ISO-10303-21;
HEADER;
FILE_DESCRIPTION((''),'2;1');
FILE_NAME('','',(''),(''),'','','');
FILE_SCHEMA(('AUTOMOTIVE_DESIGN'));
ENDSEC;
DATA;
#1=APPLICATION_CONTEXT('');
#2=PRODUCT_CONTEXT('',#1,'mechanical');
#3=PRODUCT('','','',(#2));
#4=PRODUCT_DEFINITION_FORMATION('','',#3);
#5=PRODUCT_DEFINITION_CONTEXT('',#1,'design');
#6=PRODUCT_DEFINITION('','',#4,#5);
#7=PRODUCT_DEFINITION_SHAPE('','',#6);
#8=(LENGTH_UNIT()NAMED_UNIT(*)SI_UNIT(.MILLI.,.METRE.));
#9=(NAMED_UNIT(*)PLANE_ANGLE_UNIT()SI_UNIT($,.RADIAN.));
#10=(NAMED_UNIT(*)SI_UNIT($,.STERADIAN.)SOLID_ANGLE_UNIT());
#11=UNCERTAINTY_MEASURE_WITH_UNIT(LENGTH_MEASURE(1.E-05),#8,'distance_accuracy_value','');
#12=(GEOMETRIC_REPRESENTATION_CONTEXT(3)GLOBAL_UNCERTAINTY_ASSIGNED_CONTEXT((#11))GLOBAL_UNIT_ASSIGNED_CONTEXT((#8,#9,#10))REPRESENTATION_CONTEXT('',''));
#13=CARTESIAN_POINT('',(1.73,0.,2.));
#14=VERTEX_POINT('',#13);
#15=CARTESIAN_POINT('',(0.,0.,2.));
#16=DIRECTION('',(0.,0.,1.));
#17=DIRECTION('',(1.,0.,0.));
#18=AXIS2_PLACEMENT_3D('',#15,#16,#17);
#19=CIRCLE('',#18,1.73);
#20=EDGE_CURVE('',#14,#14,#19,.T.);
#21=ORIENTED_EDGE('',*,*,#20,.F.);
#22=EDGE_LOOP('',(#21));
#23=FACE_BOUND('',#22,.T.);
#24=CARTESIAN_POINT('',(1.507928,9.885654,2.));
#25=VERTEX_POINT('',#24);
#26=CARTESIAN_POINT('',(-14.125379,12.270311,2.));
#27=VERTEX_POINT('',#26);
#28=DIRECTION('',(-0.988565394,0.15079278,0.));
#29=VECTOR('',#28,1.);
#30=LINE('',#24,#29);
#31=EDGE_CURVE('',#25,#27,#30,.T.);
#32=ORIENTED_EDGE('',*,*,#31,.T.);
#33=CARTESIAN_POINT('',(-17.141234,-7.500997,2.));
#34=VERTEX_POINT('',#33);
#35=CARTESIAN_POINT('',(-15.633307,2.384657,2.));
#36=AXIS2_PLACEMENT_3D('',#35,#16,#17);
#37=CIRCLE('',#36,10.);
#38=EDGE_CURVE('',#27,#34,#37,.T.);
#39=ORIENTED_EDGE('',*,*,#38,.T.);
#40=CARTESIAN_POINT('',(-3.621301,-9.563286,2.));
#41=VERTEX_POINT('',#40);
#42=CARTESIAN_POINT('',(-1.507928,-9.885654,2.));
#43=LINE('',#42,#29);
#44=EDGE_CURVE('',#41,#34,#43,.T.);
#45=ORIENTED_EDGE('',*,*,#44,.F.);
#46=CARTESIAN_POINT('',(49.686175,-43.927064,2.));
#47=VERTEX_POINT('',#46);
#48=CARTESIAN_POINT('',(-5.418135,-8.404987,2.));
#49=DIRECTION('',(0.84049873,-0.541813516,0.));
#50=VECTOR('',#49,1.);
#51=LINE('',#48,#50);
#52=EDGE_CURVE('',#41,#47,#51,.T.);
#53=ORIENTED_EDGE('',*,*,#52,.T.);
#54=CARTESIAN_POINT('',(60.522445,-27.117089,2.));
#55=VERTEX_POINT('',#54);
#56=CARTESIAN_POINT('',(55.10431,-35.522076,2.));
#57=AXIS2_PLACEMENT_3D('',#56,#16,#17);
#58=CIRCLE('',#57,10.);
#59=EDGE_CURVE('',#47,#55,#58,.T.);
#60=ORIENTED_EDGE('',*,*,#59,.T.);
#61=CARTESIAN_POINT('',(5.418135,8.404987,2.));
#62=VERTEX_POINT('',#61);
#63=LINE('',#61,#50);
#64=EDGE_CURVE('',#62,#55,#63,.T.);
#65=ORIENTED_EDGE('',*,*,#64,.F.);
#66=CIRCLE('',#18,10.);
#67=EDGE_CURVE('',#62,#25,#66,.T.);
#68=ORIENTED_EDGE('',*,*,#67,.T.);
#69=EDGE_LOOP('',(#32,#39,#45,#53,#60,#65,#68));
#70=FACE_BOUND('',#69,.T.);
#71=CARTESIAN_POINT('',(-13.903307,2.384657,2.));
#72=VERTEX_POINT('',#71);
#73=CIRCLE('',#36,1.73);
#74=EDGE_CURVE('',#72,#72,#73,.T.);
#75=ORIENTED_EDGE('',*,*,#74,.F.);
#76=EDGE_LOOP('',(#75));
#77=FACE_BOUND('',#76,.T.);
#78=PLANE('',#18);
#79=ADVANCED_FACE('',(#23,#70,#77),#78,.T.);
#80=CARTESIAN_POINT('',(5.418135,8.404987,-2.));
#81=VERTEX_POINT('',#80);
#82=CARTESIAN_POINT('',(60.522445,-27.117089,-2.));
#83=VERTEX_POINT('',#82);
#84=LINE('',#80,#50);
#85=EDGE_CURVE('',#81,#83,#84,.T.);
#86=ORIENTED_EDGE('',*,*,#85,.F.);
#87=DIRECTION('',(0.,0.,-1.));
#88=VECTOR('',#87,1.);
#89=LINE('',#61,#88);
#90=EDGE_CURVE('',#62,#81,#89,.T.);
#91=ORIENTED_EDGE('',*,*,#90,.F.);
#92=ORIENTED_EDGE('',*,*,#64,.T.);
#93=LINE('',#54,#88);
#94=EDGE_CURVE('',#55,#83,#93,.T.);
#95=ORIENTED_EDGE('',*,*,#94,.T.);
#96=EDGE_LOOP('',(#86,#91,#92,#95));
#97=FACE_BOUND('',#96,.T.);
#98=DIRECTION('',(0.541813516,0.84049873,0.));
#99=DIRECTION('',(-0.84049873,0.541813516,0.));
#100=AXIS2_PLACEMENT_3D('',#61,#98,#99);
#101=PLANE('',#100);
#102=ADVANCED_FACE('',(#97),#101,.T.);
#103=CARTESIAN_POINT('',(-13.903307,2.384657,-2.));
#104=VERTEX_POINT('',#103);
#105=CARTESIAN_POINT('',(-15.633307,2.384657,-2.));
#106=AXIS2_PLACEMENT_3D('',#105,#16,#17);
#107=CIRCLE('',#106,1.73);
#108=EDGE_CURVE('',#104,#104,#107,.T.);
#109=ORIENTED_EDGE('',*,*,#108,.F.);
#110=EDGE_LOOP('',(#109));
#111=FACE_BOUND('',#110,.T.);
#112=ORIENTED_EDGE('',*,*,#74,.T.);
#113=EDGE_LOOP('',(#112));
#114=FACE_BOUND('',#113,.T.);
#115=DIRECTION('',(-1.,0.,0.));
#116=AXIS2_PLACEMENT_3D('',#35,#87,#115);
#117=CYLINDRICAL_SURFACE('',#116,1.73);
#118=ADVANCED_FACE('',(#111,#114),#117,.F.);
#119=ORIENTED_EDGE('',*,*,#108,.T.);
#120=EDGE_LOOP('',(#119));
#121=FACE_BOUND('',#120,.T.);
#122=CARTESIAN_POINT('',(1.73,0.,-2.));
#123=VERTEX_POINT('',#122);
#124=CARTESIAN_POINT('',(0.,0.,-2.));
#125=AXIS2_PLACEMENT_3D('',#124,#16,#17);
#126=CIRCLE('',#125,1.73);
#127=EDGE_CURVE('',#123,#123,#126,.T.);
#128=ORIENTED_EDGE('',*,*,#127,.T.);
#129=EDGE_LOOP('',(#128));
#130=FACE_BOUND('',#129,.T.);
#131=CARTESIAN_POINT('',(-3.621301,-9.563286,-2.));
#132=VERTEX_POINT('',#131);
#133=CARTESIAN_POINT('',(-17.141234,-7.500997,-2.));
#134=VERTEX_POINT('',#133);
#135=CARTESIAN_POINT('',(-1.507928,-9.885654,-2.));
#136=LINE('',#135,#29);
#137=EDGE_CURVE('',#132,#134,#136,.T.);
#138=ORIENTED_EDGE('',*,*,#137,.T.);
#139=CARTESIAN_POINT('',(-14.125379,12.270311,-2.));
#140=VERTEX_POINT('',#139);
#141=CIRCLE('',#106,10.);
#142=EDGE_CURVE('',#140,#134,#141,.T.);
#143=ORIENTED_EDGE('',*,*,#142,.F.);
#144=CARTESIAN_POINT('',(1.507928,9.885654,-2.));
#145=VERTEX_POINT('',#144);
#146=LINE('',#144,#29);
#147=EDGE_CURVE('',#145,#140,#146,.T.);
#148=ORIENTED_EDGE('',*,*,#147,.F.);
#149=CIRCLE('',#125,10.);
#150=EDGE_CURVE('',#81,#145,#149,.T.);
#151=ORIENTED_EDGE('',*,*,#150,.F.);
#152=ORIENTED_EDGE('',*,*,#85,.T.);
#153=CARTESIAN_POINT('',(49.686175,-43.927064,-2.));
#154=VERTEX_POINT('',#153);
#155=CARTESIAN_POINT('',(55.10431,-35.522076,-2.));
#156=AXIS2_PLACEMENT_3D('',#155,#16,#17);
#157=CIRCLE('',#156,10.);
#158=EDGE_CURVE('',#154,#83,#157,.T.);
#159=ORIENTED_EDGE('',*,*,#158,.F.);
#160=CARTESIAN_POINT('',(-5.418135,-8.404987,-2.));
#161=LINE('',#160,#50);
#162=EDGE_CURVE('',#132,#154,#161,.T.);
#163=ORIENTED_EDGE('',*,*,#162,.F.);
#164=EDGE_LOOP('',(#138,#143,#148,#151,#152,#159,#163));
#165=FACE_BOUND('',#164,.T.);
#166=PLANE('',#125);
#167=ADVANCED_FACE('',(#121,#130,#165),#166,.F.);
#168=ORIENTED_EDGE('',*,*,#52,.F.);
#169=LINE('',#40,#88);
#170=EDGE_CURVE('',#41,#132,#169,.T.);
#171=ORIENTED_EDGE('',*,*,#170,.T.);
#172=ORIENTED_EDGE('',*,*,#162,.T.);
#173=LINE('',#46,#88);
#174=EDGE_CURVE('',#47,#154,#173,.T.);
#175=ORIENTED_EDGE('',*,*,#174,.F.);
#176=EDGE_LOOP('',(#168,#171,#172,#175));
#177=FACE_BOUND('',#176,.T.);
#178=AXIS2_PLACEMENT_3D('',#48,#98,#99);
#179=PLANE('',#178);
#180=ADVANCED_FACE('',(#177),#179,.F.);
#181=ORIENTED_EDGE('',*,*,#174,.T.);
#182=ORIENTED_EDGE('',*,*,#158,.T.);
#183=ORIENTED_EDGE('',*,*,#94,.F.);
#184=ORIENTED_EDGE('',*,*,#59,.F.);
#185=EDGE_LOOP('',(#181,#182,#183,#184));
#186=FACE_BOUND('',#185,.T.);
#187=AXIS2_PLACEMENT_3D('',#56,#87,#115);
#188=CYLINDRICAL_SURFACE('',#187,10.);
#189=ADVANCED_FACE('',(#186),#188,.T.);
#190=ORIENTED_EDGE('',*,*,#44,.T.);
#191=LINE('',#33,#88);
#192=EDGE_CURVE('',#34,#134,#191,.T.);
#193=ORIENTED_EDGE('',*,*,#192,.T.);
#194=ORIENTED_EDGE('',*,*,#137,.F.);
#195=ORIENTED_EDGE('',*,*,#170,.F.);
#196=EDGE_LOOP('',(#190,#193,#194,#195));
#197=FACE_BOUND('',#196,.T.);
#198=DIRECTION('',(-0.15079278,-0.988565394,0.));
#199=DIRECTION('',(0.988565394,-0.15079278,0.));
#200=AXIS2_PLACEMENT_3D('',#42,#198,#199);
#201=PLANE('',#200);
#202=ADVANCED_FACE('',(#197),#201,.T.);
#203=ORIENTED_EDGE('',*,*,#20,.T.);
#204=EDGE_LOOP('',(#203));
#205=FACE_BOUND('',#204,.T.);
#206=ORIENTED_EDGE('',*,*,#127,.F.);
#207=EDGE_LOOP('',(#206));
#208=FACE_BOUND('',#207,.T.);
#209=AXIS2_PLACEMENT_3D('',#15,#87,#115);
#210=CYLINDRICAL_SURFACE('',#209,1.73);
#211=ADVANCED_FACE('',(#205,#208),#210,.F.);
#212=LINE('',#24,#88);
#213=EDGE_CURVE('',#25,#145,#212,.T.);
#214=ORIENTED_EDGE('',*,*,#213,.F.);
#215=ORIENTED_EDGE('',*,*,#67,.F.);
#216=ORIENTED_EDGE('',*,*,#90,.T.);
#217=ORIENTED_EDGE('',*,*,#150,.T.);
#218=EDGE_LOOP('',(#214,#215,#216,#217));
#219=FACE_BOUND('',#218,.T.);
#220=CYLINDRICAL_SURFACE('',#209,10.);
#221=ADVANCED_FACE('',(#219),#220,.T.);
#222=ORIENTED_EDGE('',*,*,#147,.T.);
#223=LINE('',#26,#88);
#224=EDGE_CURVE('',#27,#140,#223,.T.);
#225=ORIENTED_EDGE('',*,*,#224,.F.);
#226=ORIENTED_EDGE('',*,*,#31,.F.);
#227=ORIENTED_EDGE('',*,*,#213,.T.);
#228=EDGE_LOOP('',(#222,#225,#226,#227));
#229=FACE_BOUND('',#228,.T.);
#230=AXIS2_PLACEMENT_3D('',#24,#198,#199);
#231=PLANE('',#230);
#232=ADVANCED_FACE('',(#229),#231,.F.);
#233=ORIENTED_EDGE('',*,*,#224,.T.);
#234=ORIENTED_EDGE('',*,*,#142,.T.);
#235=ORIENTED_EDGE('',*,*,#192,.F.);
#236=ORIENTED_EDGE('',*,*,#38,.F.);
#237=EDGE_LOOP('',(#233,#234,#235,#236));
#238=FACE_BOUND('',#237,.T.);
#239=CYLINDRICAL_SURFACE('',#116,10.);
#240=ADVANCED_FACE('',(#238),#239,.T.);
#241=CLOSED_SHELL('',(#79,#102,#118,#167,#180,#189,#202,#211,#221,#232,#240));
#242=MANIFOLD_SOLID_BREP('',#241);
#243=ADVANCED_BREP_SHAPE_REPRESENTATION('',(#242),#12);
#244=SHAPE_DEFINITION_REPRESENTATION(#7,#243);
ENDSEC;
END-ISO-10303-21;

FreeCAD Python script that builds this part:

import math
import FreeCAD as App
import Part
import Sketcher

V = App.Vector
Q = App.Units.Quantity

doc = App.newDocument("Part")
body = doc.addObject("PartDesign::Body", "Body")

sketch1 = body.newObject("Sketcher::SketchObject", "Sketch")
sketch1.AttachmentSupport = (doc.getObject("XY_Plane"), [""])
sketch1.MapMode = "FlatFace"
sketch1.addGeometry(Part.LineSegment(V(-17.141234, -7.500997, 0), V(-3.621301, -9.563286, 0)), False)
sketch1.addGeometry(Part.LineSegment(V(-3.621301, -9.563286, 0), V(49.686175, -43.927064, 0)), False)
sketch1.addGeometry(Part.ArcOfCircle(Part.Circle(V(55.10431, -35.522076, 0), V(0, 0, 1), 10), math.radians(-122.807178), math.radians(57.192822)), False)
sketch1.addGeometry(Part.LineSegment(V(60.522445, -27.117089, 0), V(5.418135, 8.404987, 0)), False)
sketch1.addGeometry(Part.ArcOfCircle(Part.Circle(V(0, 0, 0), V(0, 0, 1), 10), math.radians(57.192822), math.radians(81.327128)), False)
sketch1.addGeometry(Part.LineSegment(V(1.507928, 9.885654, 0), V(-14.125379, 12.270311, 0)), False)
sketch1.addGeometry(Part.ArcOfCircle(Part.Circle(V(-15.633307, 2.384657, 0), V(0, 0, 1), 10), math.radians(81.327128), math.radians(261.327128)), False)
sketch1.addGeometry(Part.Circle(V(0, 0, 0), V(0, 0, 1), 1.73), False)
sketch1.addGeometry(Part.Circle(V(-15.633307, 2.384657, 0), V(0, 0, 1), 1.73), False)
sketch1.addConstraint(Sketcher.Constraint("Coincident", 0, 2, 1, 1))
sketch1.addConstraint(Sketcher.Constraint("Tangent", 1, 2, 2, 1))
sketch1.addConstraint(Sketcher.Constraint("Tangent", 2, 2, 3, 1))
sketch1.addConstraint(Sketcher.Constraint("Tangent", 3, 2, 4, 1))
sketch1.addConstraint(Sketcher.Constraint("Tangent", 4, 2, 5, 1))
sketch1.addConstraint(Sketcher.Constraint("Tangent", 5, 2, 6, 1))
sketch1.addConstraint(Sketcher.Constraint("Tangent", 6, 2, 0, 1))
sketch1.addConstraint(Sketcher.Constraint("Coincident", 4, 3, -1, 1))
sketch1.addConstraint(Sketcher.Constraint("Coincident", 7, 3, -1, 1))
sketch1.addConstraint(Sketcher.Constraint("Coincident", 8, 3, 6, 3))
sketch1.addConstraint(Sketcher.Constraint("Equal", 2, 4))
sketch1.addConstraint(Sketcher.Constraint("Equal", 4, 6))
sketch1.addConstraint(Sketcher.Constraint("Equal", 7, 8))
sketch1.addConstraint(Sketcher.Constraint("Parallel", 1, 3))
sketch1.addConstraint(Sketcher.Constraint("Parallel", 0, 5))
sketch1.addConstraint(Sketcher.Constraint("Radius", 2, Q("10 mm")))
sketch1.addConstraint(Sketcher.Constraint("Diameter", 7, Q("3.46 mm")))
sketch1.addConstraint(Sketcher.Constraint("DistanceX", 0, 2, -1, 1, Q("3.621301 mm")))
sketch1.addConstraint(Sketcher.Constraint("DistanceX", -1, 1, 2, 3, Q("55.10431 mm")))
sketch1.addConstraint(Sketcher.Constraint("DistanceY", 2, 2, -1, 1, Q("27.117089 mm")))
sketch1.addConstraint(Sketcher.Constraint("DistanceX", 5, 2, -1, 1, Q("14.125379 mm")))
pad1 = body.newObject("PartDesign::Pad", "Pad")
pad1.Profile = sketch1
pad1.Length = 4
pad1.Midplane = True

doc.recompute()
